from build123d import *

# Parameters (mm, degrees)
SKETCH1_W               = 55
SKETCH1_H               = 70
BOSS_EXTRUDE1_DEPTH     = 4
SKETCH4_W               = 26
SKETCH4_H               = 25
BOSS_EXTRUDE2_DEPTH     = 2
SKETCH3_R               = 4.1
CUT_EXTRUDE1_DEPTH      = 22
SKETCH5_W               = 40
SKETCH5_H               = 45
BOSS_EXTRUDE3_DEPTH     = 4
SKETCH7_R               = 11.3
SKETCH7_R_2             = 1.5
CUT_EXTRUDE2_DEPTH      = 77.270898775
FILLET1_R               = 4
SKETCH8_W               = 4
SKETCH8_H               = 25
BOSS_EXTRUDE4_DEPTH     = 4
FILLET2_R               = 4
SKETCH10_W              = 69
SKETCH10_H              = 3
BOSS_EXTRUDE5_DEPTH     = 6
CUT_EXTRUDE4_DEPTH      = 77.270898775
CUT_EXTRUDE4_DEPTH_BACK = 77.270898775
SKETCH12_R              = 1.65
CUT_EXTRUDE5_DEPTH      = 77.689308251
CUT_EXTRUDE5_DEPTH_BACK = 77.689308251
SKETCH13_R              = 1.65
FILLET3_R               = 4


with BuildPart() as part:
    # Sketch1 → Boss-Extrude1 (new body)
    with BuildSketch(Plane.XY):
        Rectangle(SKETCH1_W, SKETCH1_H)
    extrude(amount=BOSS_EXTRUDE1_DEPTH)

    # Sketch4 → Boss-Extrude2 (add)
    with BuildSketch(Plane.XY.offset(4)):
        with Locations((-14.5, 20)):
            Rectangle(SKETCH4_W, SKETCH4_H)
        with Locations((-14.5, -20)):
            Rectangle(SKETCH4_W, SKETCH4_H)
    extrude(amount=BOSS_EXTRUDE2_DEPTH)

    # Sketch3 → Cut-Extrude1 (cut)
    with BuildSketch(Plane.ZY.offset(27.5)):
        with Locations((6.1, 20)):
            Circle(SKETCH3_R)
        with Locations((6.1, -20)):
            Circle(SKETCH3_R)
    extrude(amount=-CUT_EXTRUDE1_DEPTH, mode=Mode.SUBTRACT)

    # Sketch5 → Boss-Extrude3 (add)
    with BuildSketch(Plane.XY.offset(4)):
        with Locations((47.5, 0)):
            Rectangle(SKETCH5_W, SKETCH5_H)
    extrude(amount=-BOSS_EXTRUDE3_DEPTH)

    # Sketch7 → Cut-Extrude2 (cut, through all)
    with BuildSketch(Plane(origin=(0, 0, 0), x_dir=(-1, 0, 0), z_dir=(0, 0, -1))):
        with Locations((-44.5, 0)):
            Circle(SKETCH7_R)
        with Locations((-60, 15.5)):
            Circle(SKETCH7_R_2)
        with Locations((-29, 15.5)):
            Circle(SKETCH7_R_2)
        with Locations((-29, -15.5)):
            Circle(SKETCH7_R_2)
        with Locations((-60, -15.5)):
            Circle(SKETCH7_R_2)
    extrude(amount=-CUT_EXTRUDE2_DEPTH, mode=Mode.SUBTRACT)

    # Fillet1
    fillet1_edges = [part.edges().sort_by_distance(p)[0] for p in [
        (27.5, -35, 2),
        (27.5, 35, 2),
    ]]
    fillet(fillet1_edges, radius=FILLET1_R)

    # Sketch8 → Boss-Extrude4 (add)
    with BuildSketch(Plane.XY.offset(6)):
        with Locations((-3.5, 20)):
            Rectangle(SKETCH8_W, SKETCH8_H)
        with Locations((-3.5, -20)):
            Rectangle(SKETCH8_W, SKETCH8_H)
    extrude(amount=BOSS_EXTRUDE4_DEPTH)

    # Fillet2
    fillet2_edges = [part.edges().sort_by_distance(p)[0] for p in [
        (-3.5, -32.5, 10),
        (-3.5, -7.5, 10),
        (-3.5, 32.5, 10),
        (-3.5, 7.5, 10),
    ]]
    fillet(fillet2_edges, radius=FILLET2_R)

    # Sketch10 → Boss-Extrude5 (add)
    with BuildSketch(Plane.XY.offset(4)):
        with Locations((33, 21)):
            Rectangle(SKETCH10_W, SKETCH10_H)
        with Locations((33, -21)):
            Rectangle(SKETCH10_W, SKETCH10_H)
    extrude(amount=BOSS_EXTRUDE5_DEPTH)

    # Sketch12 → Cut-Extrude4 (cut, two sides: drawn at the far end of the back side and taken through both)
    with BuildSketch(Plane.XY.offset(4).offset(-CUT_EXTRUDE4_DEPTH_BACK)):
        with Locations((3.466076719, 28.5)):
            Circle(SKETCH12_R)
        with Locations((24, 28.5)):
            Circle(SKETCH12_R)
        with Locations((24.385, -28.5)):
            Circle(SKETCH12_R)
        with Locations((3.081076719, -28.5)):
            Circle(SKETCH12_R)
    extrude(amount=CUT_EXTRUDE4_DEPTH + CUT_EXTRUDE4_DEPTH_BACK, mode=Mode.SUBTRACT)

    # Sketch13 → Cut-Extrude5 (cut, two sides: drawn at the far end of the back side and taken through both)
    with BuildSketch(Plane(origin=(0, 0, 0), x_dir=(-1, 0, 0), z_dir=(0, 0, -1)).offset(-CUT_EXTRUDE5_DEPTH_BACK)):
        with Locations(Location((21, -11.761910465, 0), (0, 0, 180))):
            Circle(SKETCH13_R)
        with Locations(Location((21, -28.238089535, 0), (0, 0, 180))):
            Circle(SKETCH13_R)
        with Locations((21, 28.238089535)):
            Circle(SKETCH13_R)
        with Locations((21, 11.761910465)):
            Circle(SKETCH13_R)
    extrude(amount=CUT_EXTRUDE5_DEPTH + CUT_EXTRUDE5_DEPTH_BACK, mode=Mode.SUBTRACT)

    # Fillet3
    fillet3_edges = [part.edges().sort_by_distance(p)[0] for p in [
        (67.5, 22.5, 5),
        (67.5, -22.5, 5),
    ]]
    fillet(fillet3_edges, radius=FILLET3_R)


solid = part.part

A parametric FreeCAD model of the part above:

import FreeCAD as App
import Part
import Sketcher
from FreeCAD import Vector


def edges_at(feature, points):
    """Names of the edges that pass closest to the given points."""
    edges = feature.Shape.Edges
    near = lambda p: min(range(len(edges)), key=lambda i: edges[i].distToShape(Part.Vertex(*p))[0])
    return sorted({f"Edge{near(p) + 1}" for p in points})

doc = App.newDocument("Part")
body = doc.addObject("PartDesign::Body", "Body")

sketch1 = body.newObject("Sketcher::SketchObject", "Sketch")
sketch1.AttachmentSupport = (doc.getObject("XY_Plane"), [""])
sketch1.MapMode = "FlatFace"
sketch1.addGeometry([
    Part.LineSegment(Vector(-28, 35, 0), Vector(-28, -35, 0)),
    Part.LineSegment(Vector(-28, -35, 0), Vector(28, -35, 0)),
    Part.LineSegment(Vector(28, -35, 0), Vector(28, 35, 0)),
    Part.LineSegment(Vector(28, 35, 0), Vector(-28, 35, 0)),
], False)
sketch1.addConstraint([
    Sketcher.Constraint("Coincident", 0, 2, 1, 1),
    Sketcher.Constraint("Coincident", 1, 2, 2, 1),
    Sketcher.Constraint("Coincident", 2, 2, 3, 1),
    Sketcher.Constraint("Coincident", 3, 2, 0, 1),
    Sketcher.Constraint("Vertical", 0),
    Sketcher.Constraint("Horizontal", 1),
    Sketcher.Constraint("Vertical", 2),
    Sketcher.Constraint("Horizontal", 3),
    Sketcher.Constraint("Symmetric", 0, 2, 2, 2, -1, 1),
    Sketcher.Constraint("DistanceX", 1, 1, 1, 2, 55.0),
    Sketcher.Constraint("DistanceY", 0, 2, 0, 1, 70.0),
])
pad1 = body.newObject("PartDesign::Pad", "Pad")
pad1.Profile = sketch1
pad1.Length = 4

sketch2 = body.newObject("Sketcher::SketchObject", "Sketch001")
sketch2.AttachmentSupport = (doc.getObject("XY_Plane"), [""])
sketch2.MapMode = "FlatFace"
sketch2.AttachmentOffset = App.Placement(Vector(0, 0, 4), App.Rotation())
sketch2.addGeometry([
    Part.LineSegment(Vector(-28, 32, 0), Vector(-28, 8, 0)),
    Part.LineSegment(Vector(-28, 8, 0), Vector(-2, 8, 0)),
    Part.LineSegment(Vector(-2, 8, 0), Vector(-2, 32, 0)),
    Part.LineSegment(Vector(-2, 32, 0), Vector(-28, 32, 0)),
    Part.LineSegment(Vector(-28, -8, 0), Vector(-28, -32, 0)),
    Part.LineSegment(Vector(-28, -32, 0), Vector(-2, -32, 0)),
    Part.LineSegment(Vector(-2, -32, 0), Vector(-2, -8, 0)),
    Part.LineSegment(Vector(-2, -8, 0), Vector(-28, -8, 0)),
], False)
sketch2.addConstraint([
    Sketcher.Constraint("Coincident", 0, 2, 1, 1),
    Sketcher.Constraint("Coincident", 1, 2, 2, 1),
    Sketcher.Constraint("Coincident", 2, 2, 3, 1),
    Sketcher.Constraint("Coincident", 3, 2, 0, 1),
    Sketcher.Constraint("Coincident", 4, 2, 5, 1),
    Sketcher.Constraint("Coincident", 5, 2, 6, 1),
    Sketcher.Constraint("Coincident", 6, 2, 7, 1),
    Sketcher.Constraint("Coincident", 7, 2, 4, 1),
    Sketcher.Constraint("Vertical", 0),
    Sketcher.Constraint("Horizontal", 1),
    Sketcher.Constraint("Vertical", 2),
    Sketcher.Constraint("Horizontal", 3),
    Sketcher.Constraint("Vertical", 4),
    Sketcher.Constraint("Horizontal", 5),
    Sketcher.Constraint("Vertical", 6),
    Sketcher.Constraint("Horizontal", 7),
    Sketcher.Constraint("Symmetric", 3, 2, 4, 2, -1),
    Sketcher.Constraint("Symmetric", 1, 2, 6, 2, -1),
    Sketcher.Constraint("DistanceX", 1, 1, 1, 2, 26.0),
    Sketcher.Constraint("DistanceY", 0, 2, 0, 1, 25.0),
    Sketcher.Constraint("DistanceY", 4, 2, 0, 2, 40.0),
    Sketcher.Constraint("DistanceX", 0, 2, -1, 1, 27.5),
])
pad2 = body.newObject("PartDesign::Pad", "Pad001")
pad2.Profile = sketch2
pad2.Length = 2

sketch3 = body.newObject("Sketcher::SketchObject", "Sketch002")
sketch3.AttachmentSupport = (doc.getObject("YZ_Plane"), [""])
sketch3.MapMode = "FlatFace"
sketch3.AttachmentOffset = App.Placement(Vector(0, 0, -27.5), App.Rotation())
sketch3.addGeometry([
    Part.Circle(Vector(20, 6.1, 0), Vector(0, 0, 1), 4.1),
    Part.Circle(Vector(-20, 6.1, 0), Vector(0, 0, 1), 4.1),
], False)
sketch3.addConstraint([
    Sketcher.Constraint("Equal", 0, 1),
    Sketcher.Constraint("Symmetric", 0, 3, 1, 3, -2),
    Sketcher.Constraint("Diameter", 0, 8.2),
    Sketcher.Constraint("DistanceX", -1, 1, 0, 3, 20.0),
    Sketcher.Constraint("DistanceY", -1, 1, 0, 3, 6.1),
])
pocket1 = body.newObject("PartDesign::Pocket", "Pocket")
pocket1.Profile = sketch3
pocket1.Length = 22
pocket1.Reversed = True

sketch4 = body.newObject("Sketcher::SketchObject", "Sketch003")
sketch4.AttachmentSupport = (doc.getObject("XY_Plane"), [""])
sketch4.MapMode = "FlatFace"
sketch4.AttachmentOffset = App.Placement(Vector(0, 0, 4), App.Rotation())
sketch4.addGeometry([
    Part.LineSegment(Vector(28, 22, 0), Vector(28, -22, 0)),
    Part.LineSegment(Vector(28, -22, 0), Vector(68, -22, 0)),
    Part.LineSegment(Vector(68, -22, 0), Vector(68, 22, 0)),
    Part.LineSegment(Vector(68, 22, 0), Vector(28, 22, 0)),
], False)
sketch4.addConstraint([
    Sketcher.Constraint("Coincident", 0, 2, 1, 1),
    Sketcher.Constraint("Coincident", 1, 2, 2, 1),
    Sketcher.Constraint("Coincident", 2, 2, 3, 1),
    Sketcher.Constraint("Coincident", 3, 2, 0, 1),
    Sketcher.Constraint("Vertical", 0),
    Sketcher.Constraint("Horizontal", 1),
    Sketcher.Constraint("Vertical", 2),
    Sketcher.Constraint("Horizontal", 3),
    Sketcher.Constraint("DistanceX", 1, 1, 1, 2, 40.0),
    Sketcher.Constraint("DistanceY", 0, 2, 0, 1, 45.0),
    Sketcher.Constraint("DistanceX", -1, 1, 0, 2, 27.5),
    Sketcher.Constraint("DistanceY", 0, 2, -1, 1, 22.5),
])
pad3 = body.newObject("PartDesign::Pad", "Pad002")
pad3.Profile = sketch4
pad3.Length = 4
pad3.Reversed = True

sketch5 = body.newObject("Sketcher::SketchObject", "Sketch004")
sketch5.AttachmentSupport = (doc.getObject("XY_Plane"), [""])
sketch5.MapMode = "FlatFace"
sketch5.addGeometry([
    Part.Circle(Vector(44.5, 0, 0), Vector(0, 0, 1), 11.3),
    Part.Circle(Vector(60, 15.5, 0), Vector(0, 0, 1), 1.5),
    Part.Circle(Vector(29, 15.5, 0), Vector(0, 0, 1), 1.5),
    Part.Circle(Vector(29, -15.5, 0), Vector(0, 0, 1), 1.5),
    Part.Circle(Vector(60, -15.5, 0), Vector(0, 0, 1), 1.5),
], False)
sketch5.addConstraint([
    Sketcher.Constraint("Equal", 1, 2),
    Sketcher.Constraint("Equal", 2, 3),
    Sketcher.Constraint("Equal", 3, 4),
    Sketcher.Constraint("Symmetric", 2, 3, 3, 3, -1),
    Sketcher.Constraint("Symmetric", 1, 3, 4, 3, -1),
    Sketcher.Constraint("PointOnObject", 0, 3, -1),
    Sketcher.Constraint("Horizontal", 1, 3, 2, 3),
    Sketcher.Constraint("Diameter", 1, 3.0),
    Sketcher.Constraint("Diameter", 0, 22.6),
    Sketcher.Constraint("DistanceX", -1, 1, 1, 3, 60.0),
    Sketcher.Constraint("DistanceX", -1, 1, 2, 3, 29.0),
    Sketcher.Constraint("DistanceY", 3, 3, 2, 3, 31.0),
    Sketcher.Constraint("DistanceX", -1, 1, 0, 3, 44.5),
])
pocket2 = body.newObject("PartDesign::Pocket", "Pocket001")
pocket2.Profile = sketch5
pocket2.Type = "ThroughAll"
pocket2.Reversed = True
doc.recompute()

fillet = body.newObject("PartDesign::Fillet", "Fillet")
fillet.Base = (pocket2, edges_at(pocket2, [(27.5, -35, 2), (27.5, 35, 2)]))
fillet.Radius = 4

sketch6 = body.newObject("Sketcher::SketchObject", "Sketch005")
sketch6.AttachmentSupport = (doc.getObject("XY_Plane"), [""])
sketch6.MapMode = "FlatFace"
sketch6.AttachmentOffset = App.Placement(Vector(0, 0, 6), App.Rotation())
sketch6.addGeometry([
    Part.LineSegment(Vector(-5.5, 32.5, 0), Vector(-5.5, 7.5, 0)),
    Part.LineSegment(Vector(-5.5, 7.5, 0), Vector(-1.5, 7.5, 0)),
    Part.LineSegment(Vector(-1.5, 7.5, 0), Vector(-1.5, 32.5, 0)),
    Part.LineSegment(Vector(-1.5, 32.5, 0), Vector(-5.5, 32.5, 0)),
    Part.LineSegment(Vector(-5.5, -7.5, 0), Vector(-5.5, -32.5, 0)),
    Part.LineSegment(Vector(-5.5, -32.5, 0), Vector(-1.5, -32.5, 0)),
    Part.LineSegment(Vector(-1.5, -32.5, 0), Vector(-1.5, -7.5, 0)),
    Part.LineSegment(Vector(-1.5, -7.5, 0), Vector(-5.5, -7.5, 0)),
], False)
sketch6.addConstraint([
    Sketcher.Constraint("Coincident", 0, 2, 1, 1),
    Sketcher.Constraint("Coincident", 1, 2, 2, 1),
    Sketcher.Constraint("Coincident", 2, 2, 3, 1),
    Sketcher.Constraint("Coincident", 3, 2, 0, 1),
    Sketcher.Constraint("Coincident", 4, 2, 5, 1),
    Sketcher.Constraint("Coincident", 5, 2, 6, 1),
    Sketcher.Constraint("Coincident", 6, 2, 7, 1),
    Sketcher.Constraint("Coincident", 7, 2, 4, 1),
    Sketcher.Constraint("Vertical", 0),
    Sketcher.Constraint("Horizontal", 1),
    Sketcher.Constraint("Vertical", 2),
    Sketcher.Constraint("Horizontal", 3),
    Sketcher.Constraint("Vertical", 4),
    Sketcher.Constraint("Horizontal", 5),
    Sketcher.Constraint("Vertical", 6),
    Sketcher.Constraint("Horizontal", 7),
    Sketcher.Constraint("Symmetric", 3, 2, 4, 2, -1),
    Sketcher.Constraint("Symmetric", 1, 2, 6, 2, -1),
    Sketcher.Constraint("DistanceX", 1, 1, 1, 2, 4.0),
    Sketcher.Constraint("DistanceY", 0, 2, 0, 1, 25.0),
    Sketcher.Constraint("DistanceY", 4, 2, 0, 2, 40.0),
    Sketcher.Constraint("DistanceX", 0, 2, -1, 1, 5.5),
])
pad4 = body.newObject("PartDesign::Pad", "Pad003")
pad4.Profile = sketch6
pad4.Length = 4
doc.recompute()

fillet2 = body.newObject("PartDesign::Fillet", "Fillet001")
fillet2.Base = (pad4, edges_at(pad4, [
    (-3.5, -32.5, 10),
    (-3.5, -7.5, 10),
    (-3.5, 32.5, 10),
    (-3.5, 7.5, 10),
]))
fillet2.Radius = 4

sketch7 = body.newObject("Sketcher::SketchObject", "Sketch006")
sketch7.AttachmentSupport = (doc.getObject("XY_Plane"), [""])
sketch7.MapMode = "FlatFace"
sketch7.AttachmentOffset = App.Placement(Vector(0, 0, 4), App.Rotation())
sketch7.addGeometry([
    Part.LineSegment(Vector(-1.5, 22.5, 0), Vector(-1.5, 19.5, 0)),
    Part.LineSegment(Vector(-1.5, 19.5, 0), Vector(67.5, 19.5, 0)),
    Part.LineSegment(Vector(67.5, 19.5, 0), Vector(67.5, 22.5, 0)),
    Part.LineSegment(Vector(67.5, 22.5, 0), Vector(-1.5, 22.5, 0)),
    Part.LineSegment(Vector(-1.5, -19.5, 0), Vector(-1.5, -22.5, 0)),
    Part.LineSegment(Vector(-1.5, -22.5, 0), Vector(67.5, -22.5, 0)),
    Part.LineSegment(Vector(67.5, -22.5, 0), Vector(67.5, -19.5, 0)),
    Part.LineSegment(Vector(67.5, -19.5, 0), Vector(-1.5, -19.5, 0)),
], False)
sketch7.addConstraint([
    Sketcher.Constraint("Coincident", 0, 2, 1, 1),
    Sketcher.Constraint("Coincident", 1, 2, 2, 1),
    Sketcher.Constraint("Coincident", 2, 2, 3, 1),
    Sketcher.Constraint("Coincident", 3, 2, 0, 1),
    Sketcher.Constraint("Coincident", 4, 2, 5, 1),
    Sketcher.Constraint("Coincident", 5, 2, 6, 1),
    Sketcher.Constraint("Coincident", 6, 2, 7, 1),
    Sketcher.Constraint("Coincident", 7, 2, 4, 1),
    Sketcher.Constraint("Vertical", 0),
    Sketcher.Constraint("Horizontal", 1),
    Sketcher.Constraint("Vertical", 2),
    Sketcher.Constraint("Horizontal", 3),
    Sketcher.Constraint("Vertical", 4),
    Sketcher.Constraint("Horizontal", 5),
    Sketcher.Constraint("Vertical", 6),
    Sketcher.Constraint("Horizontal", 7),
    Sketcher.Constraint("Symmetric", 3, 2, 4, 2, -1),
    Sketcher.Constraint("Symmetric", 1, 2, 6, 2, -1),
    Sketcher.Constraint("DistanceX", 1, 1, 1, 2, 69.0),
    Sketcher.Constraint("DistanceY", 0, 2, 0, 1, 3.0),
    Sketcher.Constraint("DistanceY", 4, 2, 0, 2, 42.0),
    Sketcher.Constraint("DistanceX", 0, 2, -1, 1, 1.5),
])
pad5 = body.newObject("PartDesign::Pad", "Pad004")
pad5.Profile = sketch7
pad5.Length = 6

sketch8 = body.newObject("Sketcher::SketchObject", "Sketch007")
sketch8.AttachmentSupport = (doc.getObject("XY_Plane"), [""])
sketch8.MapMode = "FlatFace"
sketch8.AttachmentOffset = App.Placement(Vector(0, 0, 4), App.Rotation())
sketch8.addGeometry([
    Part.Circle(Vector(3.5, 28.5, 0), Vector(0, 0, 1), 1.6),
    Part.Circle(Vector(24, 28.5, 0), Vector(0, 0, 1), 1.6),
    Part.Circle(Vector(24.4, -28.5, 0), Vector(0, 0, 1), 1.6),
    Part.Circle(Vector(3.1, -28.5, 0), Vector(0, 0, 1), 1.6),
], False)
sketch8.addConstraint([
    Sketcher.Constraint("Equal", 0, 1),
    Sketcher.Constraint("Equal", 1, 2),
    Sketcher.Constraint("Equal", 2, 3),
    Sketcher.Constraint("Horizontal", 0, 3, 1, 3),
    Sketcher.Constraint("Horizontal", 2, 3, 3, 3),
    Sketcher.Constraint("Diameter", 0, 3.3),
    Sketcher.Constraint("DistanceX", -1, 1, 1, 3, 24.0),
    Sketcher.Constraint("DistanceY", 2, 3, 1, 3, 57.0),
    Sketcher.Constraint("DistanceY", -1, 1, 0, 3, 28.5),
    Sketcher.Constraint("DistanceX", -1, 1, 2, 3, 24.385),
    Sketcher.Constraint("DistanceX", 3, 3, 0, 3, 0.385),
    Sketcher.Constraint("DistanceX", -1, 1, 0, 3, 3.466077),
])
pocket3 = body.newObject("PartDesign::Pocket", "Pocket002")
pocket3.Profile = sketch8
pocket3.Type = "ThroughAll"
pocket3.Midplane = True

sketch9 = body.newObject("Sketcher::SketchObject", "Sketch008")
sketch9.AttachmentSupport = (doc.getObject("XY_Plane"), [""])
sketch9.MapMode = "FlatFace"
sketch9.addGeometry([
    Part.Circle(Vector(-21, -11.8, 0), Vector(0, 0, 1), 1.6),
    Part.Circle(Vector(-21, -28.2, 0), Vector(0, 0, 1), 1.6),
    Part.Circle(Vector(-21, 28.2, 0), Vector(0, 0, 1), 1.6),
    Part.Circle(Vector(-21, 11.8, 0), Vector(0, 0, 1), 1.6),
], False)
sketch9.addConstraint([
    Sketcher.Constraint("Equal", 0, 1),
    Sketcher.Constraint("Equal", 1, 2),
    Sketcher.Constraint("Equal", 2, 3),
    Sketcher.Constraint("Symmetric", 1, 3, 2, 3, -1),
    Sketcher.Constraint("Symmetric", 0, 3, 3, 3, -1),
    Sketcher.Constraint("Vertical", 0, 3, 1, 3),
    Sketcher.Constraint("Diameter", 0, 3.3),
    Sketcher.Constraint("DistanceX", 0, 3, -1, 1, 21.0),
    Sketcher.Constraint("DistanceY", 0, 3, 2, 3, 40.0),
    Sketcher.Constraint("DistanceY", 0, 3, -1, 1, 11.76191),
])
pocket4 = body.newObject("PartDesign::Pocket", "Pocket003")
pocket4.Profile = sketch9
pocket4.Type = "ThroughAll"
pocket4.Midplane = True
doc.recompute()

fillet3 = body.newObject("PartDesign::Fillet", "Fillet002")
fillet3.Base = (pocket4, edges_at(pocket4, [(67.5, 22.5, 5), (67.5, -22.5, 5)]))
fillet3.Radius = 4

doc.recompute()
